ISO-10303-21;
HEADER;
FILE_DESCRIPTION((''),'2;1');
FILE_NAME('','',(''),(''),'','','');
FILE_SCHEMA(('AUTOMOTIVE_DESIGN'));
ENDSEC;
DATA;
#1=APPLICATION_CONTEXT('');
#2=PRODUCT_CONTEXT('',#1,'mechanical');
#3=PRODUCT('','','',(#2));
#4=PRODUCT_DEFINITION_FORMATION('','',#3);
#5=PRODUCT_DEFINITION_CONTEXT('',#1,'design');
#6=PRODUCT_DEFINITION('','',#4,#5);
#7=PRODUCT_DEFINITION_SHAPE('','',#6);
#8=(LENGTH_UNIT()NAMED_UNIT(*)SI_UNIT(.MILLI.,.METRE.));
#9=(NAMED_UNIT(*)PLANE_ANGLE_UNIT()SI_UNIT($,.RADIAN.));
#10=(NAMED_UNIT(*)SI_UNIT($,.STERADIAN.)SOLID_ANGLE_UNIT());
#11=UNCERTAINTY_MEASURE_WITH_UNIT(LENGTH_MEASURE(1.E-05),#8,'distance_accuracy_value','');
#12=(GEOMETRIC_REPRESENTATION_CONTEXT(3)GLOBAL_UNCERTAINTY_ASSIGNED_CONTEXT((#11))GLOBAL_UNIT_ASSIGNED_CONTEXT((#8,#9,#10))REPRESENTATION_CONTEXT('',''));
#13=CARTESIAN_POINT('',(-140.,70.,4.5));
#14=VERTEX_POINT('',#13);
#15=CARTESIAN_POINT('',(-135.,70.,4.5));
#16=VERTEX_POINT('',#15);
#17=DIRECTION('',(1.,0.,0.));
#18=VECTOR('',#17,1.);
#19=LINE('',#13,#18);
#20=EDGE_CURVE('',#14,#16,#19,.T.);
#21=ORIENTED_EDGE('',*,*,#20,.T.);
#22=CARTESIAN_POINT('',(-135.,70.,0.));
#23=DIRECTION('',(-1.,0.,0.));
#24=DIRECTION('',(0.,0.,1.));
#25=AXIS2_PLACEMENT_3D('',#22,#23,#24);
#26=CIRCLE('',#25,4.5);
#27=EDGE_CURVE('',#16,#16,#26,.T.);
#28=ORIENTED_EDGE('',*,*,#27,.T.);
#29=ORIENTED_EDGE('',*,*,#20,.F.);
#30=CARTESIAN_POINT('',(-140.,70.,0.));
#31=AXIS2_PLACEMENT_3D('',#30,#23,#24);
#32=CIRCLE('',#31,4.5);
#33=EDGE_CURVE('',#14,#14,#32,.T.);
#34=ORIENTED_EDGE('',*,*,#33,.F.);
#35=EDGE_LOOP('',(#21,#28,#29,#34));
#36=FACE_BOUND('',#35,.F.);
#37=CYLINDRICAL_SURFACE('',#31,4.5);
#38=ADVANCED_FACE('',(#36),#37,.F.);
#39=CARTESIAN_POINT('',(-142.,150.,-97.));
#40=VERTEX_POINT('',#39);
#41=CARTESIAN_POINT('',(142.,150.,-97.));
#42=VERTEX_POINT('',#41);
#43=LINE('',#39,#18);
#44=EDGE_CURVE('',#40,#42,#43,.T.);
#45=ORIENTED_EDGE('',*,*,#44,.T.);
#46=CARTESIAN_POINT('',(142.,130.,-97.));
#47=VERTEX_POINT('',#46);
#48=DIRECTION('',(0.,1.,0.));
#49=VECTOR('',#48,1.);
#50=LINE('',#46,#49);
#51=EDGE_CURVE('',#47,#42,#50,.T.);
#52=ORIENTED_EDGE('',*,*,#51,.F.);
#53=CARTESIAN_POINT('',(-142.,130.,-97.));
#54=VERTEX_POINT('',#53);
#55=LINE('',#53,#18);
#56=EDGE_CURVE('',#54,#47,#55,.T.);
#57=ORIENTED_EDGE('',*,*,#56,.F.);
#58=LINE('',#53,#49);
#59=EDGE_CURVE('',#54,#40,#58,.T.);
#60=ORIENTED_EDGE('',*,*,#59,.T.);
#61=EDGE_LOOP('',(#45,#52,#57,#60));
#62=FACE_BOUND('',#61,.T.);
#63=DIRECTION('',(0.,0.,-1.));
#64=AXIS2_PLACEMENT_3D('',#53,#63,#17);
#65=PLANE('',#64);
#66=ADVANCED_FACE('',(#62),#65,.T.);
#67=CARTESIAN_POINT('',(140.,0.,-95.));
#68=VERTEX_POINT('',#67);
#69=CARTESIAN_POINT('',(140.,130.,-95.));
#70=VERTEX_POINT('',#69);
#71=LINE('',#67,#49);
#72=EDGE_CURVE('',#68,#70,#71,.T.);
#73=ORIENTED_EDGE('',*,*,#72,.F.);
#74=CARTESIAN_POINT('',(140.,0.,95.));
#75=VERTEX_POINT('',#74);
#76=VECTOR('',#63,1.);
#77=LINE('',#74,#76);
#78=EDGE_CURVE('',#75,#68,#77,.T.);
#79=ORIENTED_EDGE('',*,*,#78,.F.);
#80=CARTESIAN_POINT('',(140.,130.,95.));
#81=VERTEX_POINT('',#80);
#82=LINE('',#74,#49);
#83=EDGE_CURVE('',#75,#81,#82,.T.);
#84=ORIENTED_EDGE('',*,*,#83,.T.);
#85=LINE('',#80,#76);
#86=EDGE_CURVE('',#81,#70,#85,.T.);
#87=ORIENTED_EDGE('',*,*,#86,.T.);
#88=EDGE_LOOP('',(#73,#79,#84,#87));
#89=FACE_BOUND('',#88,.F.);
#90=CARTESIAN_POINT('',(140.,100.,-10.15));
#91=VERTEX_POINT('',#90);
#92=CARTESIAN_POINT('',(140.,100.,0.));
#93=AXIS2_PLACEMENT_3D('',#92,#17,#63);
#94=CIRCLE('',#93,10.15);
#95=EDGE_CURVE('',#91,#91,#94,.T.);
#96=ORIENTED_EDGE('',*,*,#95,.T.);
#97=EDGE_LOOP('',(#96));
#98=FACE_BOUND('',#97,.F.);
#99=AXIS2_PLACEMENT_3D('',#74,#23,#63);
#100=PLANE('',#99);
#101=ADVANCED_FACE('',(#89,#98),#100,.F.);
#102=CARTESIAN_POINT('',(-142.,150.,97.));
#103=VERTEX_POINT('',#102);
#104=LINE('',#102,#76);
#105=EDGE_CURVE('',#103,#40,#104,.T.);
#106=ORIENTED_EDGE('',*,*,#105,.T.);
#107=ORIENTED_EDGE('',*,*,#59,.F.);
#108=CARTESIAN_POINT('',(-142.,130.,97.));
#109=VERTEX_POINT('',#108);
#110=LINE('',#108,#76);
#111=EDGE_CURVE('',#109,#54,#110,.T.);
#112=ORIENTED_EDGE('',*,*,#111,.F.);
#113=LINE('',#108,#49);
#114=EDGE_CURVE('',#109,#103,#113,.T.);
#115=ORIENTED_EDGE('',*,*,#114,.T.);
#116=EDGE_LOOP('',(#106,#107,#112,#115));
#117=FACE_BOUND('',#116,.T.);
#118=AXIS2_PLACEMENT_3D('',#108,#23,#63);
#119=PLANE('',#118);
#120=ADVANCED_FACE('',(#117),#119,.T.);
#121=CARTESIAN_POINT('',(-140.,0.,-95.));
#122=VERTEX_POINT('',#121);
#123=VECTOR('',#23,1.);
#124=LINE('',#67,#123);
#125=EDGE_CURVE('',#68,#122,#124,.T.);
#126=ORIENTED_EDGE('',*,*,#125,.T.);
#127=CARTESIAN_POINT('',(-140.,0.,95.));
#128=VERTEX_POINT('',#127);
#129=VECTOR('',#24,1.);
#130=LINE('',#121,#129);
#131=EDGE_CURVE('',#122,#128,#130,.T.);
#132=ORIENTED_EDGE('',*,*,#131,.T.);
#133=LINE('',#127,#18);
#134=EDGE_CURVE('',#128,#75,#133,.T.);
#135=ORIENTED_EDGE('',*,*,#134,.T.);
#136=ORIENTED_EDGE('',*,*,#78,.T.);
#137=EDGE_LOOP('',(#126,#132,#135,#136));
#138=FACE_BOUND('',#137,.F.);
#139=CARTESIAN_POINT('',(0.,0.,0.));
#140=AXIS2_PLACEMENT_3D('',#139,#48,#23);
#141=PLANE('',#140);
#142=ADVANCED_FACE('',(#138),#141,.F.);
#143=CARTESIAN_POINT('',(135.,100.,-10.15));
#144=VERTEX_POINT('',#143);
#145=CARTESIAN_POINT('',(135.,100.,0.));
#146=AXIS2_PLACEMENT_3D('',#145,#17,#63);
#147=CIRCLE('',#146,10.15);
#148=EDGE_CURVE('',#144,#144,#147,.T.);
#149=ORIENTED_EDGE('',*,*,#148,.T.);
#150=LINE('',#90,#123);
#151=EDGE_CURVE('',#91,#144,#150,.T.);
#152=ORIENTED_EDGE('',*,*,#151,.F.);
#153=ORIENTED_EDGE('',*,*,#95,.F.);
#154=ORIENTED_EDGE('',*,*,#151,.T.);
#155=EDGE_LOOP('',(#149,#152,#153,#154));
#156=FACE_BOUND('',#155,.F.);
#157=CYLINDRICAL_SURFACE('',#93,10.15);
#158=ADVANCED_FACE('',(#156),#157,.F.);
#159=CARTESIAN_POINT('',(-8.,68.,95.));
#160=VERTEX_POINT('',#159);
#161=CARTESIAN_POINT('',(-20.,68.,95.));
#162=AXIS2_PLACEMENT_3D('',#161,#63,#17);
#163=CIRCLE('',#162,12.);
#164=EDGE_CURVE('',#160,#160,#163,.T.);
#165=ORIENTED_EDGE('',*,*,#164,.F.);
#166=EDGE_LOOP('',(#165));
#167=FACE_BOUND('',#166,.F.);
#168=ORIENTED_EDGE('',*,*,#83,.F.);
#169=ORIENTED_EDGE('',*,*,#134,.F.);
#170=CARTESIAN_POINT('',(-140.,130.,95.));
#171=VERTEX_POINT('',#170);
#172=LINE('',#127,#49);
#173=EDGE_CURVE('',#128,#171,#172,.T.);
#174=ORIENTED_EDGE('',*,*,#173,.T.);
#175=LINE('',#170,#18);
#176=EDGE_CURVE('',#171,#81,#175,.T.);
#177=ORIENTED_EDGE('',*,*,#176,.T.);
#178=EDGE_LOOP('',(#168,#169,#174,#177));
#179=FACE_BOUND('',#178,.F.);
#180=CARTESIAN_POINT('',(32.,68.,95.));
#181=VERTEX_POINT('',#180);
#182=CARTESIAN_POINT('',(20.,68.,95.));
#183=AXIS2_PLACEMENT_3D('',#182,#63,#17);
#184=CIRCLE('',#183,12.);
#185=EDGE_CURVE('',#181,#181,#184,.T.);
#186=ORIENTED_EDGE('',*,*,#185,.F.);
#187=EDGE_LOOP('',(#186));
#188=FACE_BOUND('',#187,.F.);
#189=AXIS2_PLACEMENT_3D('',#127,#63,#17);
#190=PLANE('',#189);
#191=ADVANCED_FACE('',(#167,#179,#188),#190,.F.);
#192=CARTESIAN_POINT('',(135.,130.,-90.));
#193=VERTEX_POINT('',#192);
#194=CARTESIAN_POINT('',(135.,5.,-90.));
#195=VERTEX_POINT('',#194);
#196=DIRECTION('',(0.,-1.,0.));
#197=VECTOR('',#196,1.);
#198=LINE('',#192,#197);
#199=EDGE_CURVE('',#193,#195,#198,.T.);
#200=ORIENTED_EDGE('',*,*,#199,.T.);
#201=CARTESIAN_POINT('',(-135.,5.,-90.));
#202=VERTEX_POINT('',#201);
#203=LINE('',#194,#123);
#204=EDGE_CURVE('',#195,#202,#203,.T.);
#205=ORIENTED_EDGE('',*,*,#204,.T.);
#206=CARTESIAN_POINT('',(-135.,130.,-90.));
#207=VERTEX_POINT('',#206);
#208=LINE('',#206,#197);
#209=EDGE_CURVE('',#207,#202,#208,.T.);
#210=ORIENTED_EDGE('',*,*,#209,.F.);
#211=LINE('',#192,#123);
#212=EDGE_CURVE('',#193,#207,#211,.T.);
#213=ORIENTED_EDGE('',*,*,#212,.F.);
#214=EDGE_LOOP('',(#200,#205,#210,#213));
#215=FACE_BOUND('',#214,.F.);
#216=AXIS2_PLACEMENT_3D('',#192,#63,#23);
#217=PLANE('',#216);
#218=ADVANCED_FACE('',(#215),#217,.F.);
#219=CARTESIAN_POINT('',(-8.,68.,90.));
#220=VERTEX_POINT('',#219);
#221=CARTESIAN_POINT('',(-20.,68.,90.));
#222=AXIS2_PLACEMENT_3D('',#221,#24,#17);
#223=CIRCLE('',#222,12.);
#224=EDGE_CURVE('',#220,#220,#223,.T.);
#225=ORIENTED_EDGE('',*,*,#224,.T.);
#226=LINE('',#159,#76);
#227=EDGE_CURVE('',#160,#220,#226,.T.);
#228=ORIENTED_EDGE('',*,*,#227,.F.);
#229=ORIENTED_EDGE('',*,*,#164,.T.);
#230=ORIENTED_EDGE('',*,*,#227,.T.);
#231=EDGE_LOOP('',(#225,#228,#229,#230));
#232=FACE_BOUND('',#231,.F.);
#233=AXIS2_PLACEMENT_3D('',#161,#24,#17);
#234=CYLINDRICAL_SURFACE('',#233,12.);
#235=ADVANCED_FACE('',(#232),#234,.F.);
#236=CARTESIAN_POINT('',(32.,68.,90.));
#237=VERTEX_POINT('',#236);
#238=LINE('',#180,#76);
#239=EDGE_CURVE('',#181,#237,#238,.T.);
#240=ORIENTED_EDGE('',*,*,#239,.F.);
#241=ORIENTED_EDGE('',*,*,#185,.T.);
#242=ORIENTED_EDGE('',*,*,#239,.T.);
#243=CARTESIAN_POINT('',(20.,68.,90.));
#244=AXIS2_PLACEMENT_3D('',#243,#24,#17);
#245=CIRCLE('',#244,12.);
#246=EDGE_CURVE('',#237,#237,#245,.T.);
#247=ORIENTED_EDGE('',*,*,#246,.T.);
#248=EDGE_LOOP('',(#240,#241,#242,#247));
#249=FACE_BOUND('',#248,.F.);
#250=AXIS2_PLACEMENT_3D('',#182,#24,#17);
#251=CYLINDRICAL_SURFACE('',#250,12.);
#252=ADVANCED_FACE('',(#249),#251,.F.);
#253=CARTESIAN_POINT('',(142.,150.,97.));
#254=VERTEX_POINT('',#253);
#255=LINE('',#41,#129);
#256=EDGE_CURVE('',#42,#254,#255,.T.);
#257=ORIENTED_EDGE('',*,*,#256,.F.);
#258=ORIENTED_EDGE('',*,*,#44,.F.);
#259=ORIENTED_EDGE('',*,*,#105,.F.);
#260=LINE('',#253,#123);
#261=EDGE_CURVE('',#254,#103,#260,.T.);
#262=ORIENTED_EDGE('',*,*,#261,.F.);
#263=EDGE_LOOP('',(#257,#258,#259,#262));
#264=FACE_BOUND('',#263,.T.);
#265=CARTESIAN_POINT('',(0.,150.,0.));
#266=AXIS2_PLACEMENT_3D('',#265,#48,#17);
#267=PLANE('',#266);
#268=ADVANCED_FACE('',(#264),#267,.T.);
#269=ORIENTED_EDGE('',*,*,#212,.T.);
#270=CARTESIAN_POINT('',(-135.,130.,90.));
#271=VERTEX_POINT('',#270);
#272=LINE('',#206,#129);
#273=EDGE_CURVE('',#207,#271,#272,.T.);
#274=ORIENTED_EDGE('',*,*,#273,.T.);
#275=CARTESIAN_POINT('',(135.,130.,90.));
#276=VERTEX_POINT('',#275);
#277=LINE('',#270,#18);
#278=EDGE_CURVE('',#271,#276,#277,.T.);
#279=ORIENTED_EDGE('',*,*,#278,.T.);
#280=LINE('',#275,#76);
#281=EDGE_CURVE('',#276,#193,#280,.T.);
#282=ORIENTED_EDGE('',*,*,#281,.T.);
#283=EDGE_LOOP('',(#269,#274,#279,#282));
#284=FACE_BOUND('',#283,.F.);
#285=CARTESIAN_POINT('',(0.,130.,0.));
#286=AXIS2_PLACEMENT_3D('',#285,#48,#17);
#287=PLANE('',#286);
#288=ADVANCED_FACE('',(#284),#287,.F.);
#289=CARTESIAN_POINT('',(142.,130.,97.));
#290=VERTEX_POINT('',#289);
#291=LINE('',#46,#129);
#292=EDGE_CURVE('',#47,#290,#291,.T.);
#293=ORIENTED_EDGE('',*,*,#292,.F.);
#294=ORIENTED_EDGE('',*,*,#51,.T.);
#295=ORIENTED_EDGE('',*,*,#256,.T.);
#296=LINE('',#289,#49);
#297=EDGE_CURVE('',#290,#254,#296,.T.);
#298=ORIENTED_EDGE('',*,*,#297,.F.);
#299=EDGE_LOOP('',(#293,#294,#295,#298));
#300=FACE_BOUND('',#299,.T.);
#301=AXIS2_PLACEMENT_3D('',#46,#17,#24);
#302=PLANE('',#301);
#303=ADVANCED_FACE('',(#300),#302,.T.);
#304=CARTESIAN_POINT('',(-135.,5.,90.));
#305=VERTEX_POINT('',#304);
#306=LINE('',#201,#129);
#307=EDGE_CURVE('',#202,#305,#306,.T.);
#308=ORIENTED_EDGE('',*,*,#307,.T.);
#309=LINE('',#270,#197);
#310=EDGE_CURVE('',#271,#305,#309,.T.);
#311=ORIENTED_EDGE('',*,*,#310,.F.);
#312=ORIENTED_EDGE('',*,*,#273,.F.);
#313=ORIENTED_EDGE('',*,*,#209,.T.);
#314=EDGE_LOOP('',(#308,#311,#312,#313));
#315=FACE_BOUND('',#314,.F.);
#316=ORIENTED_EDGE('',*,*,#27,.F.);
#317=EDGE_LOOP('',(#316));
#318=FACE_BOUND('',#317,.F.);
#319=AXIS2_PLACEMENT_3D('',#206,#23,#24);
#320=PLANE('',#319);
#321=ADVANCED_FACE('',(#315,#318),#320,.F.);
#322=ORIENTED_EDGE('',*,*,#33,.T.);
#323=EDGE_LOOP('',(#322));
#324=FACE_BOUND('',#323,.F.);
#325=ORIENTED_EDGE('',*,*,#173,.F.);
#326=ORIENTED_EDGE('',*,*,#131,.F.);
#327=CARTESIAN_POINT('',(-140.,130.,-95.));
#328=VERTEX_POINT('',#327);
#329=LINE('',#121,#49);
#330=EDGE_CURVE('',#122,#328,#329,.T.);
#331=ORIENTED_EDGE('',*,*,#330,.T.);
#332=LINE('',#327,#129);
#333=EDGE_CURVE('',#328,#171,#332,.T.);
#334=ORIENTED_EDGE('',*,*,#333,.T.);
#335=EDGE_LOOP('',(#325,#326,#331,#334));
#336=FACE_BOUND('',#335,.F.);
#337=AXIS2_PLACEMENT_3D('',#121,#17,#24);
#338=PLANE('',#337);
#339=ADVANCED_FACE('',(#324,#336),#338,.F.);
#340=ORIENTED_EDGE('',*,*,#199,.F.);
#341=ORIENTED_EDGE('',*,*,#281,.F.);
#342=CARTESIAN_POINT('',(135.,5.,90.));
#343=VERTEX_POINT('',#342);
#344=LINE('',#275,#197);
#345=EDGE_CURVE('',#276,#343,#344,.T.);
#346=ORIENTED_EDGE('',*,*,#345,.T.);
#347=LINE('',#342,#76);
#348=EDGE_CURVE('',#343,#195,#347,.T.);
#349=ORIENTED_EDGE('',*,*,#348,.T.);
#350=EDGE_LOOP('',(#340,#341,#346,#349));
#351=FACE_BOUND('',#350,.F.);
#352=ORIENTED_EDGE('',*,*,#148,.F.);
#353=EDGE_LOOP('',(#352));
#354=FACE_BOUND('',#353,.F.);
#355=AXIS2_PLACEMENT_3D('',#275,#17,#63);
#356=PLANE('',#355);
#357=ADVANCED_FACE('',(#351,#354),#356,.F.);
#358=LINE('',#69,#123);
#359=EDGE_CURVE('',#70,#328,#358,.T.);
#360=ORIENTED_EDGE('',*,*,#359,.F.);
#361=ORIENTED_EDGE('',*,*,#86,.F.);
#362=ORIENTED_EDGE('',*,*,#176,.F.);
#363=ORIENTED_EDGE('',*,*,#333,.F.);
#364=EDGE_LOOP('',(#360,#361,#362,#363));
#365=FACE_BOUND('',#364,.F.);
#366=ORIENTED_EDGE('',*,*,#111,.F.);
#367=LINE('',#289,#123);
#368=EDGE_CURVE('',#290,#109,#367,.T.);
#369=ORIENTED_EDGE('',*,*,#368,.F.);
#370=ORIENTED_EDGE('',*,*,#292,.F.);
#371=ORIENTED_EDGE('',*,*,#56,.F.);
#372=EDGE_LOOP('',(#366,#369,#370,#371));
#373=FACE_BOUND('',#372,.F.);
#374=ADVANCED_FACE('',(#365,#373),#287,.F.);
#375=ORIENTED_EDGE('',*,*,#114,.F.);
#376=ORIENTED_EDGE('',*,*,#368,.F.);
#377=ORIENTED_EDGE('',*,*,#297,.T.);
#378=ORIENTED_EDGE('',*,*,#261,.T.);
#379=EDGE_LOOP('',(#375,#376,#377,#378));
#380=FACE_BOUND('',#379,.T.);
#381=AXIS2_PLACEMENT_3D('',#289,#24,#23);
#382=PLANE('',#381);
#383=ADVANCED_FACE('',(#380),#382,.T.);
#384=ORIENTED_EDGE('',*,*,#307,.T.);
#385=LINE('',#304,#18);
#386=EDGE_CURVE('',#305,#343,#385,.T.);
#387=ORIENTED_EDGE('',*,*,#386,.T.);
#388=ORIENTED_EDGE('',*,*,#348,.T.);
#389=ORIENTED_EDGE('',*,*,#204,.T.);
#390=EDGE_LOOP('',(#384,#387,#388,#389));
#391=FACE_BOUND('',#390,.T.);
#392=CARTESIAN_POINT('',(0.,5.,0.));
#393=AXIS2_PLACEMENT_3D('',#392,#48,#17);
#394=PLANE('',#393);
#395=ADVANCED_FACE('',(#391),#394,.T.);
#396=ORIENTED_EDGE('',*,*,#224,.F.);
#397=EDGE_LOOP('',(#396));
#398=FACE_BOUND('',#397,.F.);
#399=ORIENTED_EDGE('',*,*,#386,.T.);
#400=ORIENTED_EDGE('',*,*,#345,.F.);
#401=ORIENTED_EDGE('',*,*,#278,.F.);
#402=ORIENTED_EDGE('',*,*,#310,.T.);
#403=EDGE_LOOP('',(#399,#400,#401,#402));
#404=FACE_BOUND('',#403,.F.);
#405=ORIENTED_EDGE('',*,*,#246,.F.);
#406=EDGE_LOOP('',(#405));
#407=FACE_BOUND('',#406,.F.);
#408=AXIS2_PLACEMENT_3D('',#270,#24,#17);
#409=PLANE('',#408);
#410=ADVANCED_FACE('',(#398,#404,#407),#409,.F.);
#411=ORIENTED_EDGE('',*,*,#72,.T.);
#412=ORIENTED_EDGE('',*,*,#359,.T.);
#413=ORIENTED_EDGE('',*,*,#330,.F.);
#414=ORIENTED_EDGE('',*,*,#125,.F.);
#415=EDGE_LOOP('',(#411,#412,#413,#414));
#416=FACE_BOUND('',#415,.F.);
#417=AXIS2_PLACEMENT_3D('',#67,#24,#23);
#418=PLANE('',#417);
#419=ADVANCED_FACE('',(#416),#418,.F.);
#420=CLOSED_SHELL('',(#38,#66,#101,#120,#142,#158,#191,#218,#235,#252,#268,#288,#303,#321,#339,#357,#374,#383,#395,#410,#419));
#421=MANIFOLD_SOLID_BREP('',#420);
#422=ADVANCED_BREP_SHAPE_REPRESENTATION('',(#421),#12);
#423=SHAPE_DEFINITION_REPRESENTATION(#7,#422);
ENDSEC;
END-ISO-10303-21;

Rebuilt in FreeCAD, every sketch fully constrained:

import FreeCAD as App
import Part
import Sketcher
Q = App.Units.Quantity


def add_polygon(sketch, points):
    """Adds a closed chain of lines whose ends are joined by coincident constraints."""
    first, n = sketch.GeometryCount, len(points)
    for a, b in zip(points, points[1:] + points[:1]):
        sketch.addGeometry(Part.LineSegment(App.Vector(*a, 0), App.Vector(*b, 0)), False)
    for i in range(n):
        sketch.addConstraint(Sketcher.Constraint("Coincident", first + i, 2, first + (i + 1) % n, 1))

doc = App.newDocument("Part")
body = doc.addObject("PartDesign::Body", "Body")

sketch1 = body.newObject("Sketcher::SketchObject", "Sketch")
sketch1.AttachmentSupport = (doc.getObject("XZ_Plane"), [""])
sketch1.MapMode = "FlatFace"
add_polygon(sketch1, [(-140, -95), (-140, 95), (140, 95), (140, -95)])
sketch1.addConstraint([
    Sketcher.Constraint("Vertical", 0),
    Sketcher.Constraint("Horizontal", 1),
    Sketcher.Constraint("Vertical", 2),
    Sketcher.Constraint("Horizontal", 3),
    Sketcher.Constraint("Symmetric", 0, 2, 2, 2, -1, 1),
    Sketcher.Constraint("DistanceX", 1, 1, 1, 2, Q("280 mm")),
    Sketcher.Constraint("DistanceY", 0, 1, 0, 2, Q("190 mm")),
])
pad1 = body.newObject("PartDesign::Pad", "Pad")
pad1.Profile = sketch1
pad1.Length = 130
pad1.Reversed = True

sketch2 = body.newObject("Sketcher::SketchObject", "Sketch001")
sketch2.AttachmentSupport = (doc.getObject("XZ_Plane"), [""])
sketch2.MapMode = "FlatFace"
sketch2.AttachmentOffset = App.Placement(App.Vector(0, 0, -130), App.Rotation())
add_polygon(sketch2, [(-135, -90), (-135, 90), (135, 90), (135, -90)])
sketch2.addConstraint([
    Sketcher.Constraint("Vertical", 0),
    Sketcher.Constraint("Horizontal", 1),
    Sketcher.Constraint("Vertical", 2),
    Sketcher.Constraint("Horizontal", 3),
    Sketcher.Constraint("Symmetric", 0, 2, 2, 2, -1, 1),
    Sketcher.Constraint("DistanceX", 1, 1, 1, 2, Q("270 mm")),
    Sketcher.Constraint("DistanceY", 0, 1, 0, 2, Q("180 mm")),
])
pocket1 = body.newObject("PartDesign::Pocket", "Pocket")
pocket1.Profile = sketch2
pocket1.Length = 125
pocket1.Reversed = True

sketch3 = body.newObject("Sketcher::SketchObject", "Sketch002")
sketch3.AttachmentSupport = (doc.getObject("XZ_Plane"), [""])
sketch3.MapMode = "FlatFace"
sketch3.AttachmentOffset = App.Placement(App.Vector(0, 0, -130), App.Rotation())
add_polygon(sketch3, [(142, -97), (-142, -97), (-142, 97), (142, 97)])
sketch3.addConstraint([
    Sketcher.Constraint("Horizontal", 0),
    Sketcher.Constraint("Vertical", 1),
    Sketcher.Constraint("Horizontal", 2),
    Sketcher.Constraint("Vertical", 3),
    Sketcher.Constraint("Symmetric", 0, 2, 2, 2, -1, 1),
    Sketcher.Constraint("DistanceX", 0, 2, 0, 1, Q("284 mm")),
    Sketcher.Constraint("DistanceY", 1, 1, 1, 2, Q("194 mm")),
])
pad2 = body.newObject("PartDesign::Pad", "Pad001")
pad2.Profile = sketch3
pad2.Length = 20
pad2.Reversed = True

sketch4 = body.newObject("Sketcher::SketchObject", "Sketch003")
sketch4.AttachmentSupport = (doc.getObject("XY_Plane"), [""])
sketch4.MapMode = "FlatFace"
sketch4.AttachmentOffset = App.Placement(App.Vector(0, 0, 95), App.Rotation())
sketch4.addGeometry([
    Part.Circle(App.Vector(-20, 68, 0), App.Vector(0, 0, 1), 12),
    Part.Circle(App.Vector(20, 68, 0), App.Vector(0, 0, 1), 12),
], False)
sketch4.addConstraint([
    Sketcher.Constraint("Equal", 0, 1),
    Sketcher.Constraint("Symmetric", 0, 3, 1, 3, -2),
    Sketcher.Constraint("Diameter", 0, Q("24 mm")),
    Sketcher.Constraint("DistanceY", -1, 1, 0, 3, Q("68 mm")),
    Sketcher.Constraint("DistanceX", 0, 3, 1, 3, Q("40 mm")),
])
pocket2 = body.newObject("PartDesign::Pocket", "Pocket001")
pocket2.Profile = sketch4
pocket2.Length = 10

sketch5 = body.newObject("Sketcher::SketchObject", "Sketch004")
sketch5.AttachmentSupport = (doc.getObject("YZ_Plane"), [""])
sketch5.MapMode = "FlatFace"
sketch5.AttachmentOffset = App.Placement(App.Vector(0, 0, 140), App.Rotation())
sketch5.addGeometry(Part.Circle(App.Vector(100, 0, 0), App.Vector(0, 0, 1), 10), False)
sketch5.addConstraint([
    Sketcher.Constraint("PointOnObject", 0, 3, -1),
    Sketcher.Constraint("Diameter", 0, Q("20.3 mm")),
    Sketcher.Constraint("DistanceX", -1, 1, 0, 3, Q("100 mm")),
])
pocket3 = body.newObject("PartDesign::Pocket", "Pocket002")
pocket3.Profile = sketch5
pocket3.Length = 10

sketch6 = body.newObject("Sketcher::SketchObject", "Sketch005")
sketch6.AttachmentSupport = (doc.getObject("YZ_Plane"), [""])
sketch6.MapMode = "FlatFace"
sketch6.AttachmentOffset = App.Placement(App.Vector(0, 0, -140), App.Rotation())
sketch6.addGeometry(Part.Circle(App.Vector(70, 0, 0), App.Vector(0, 0, 1), 4.5), False)
sketch6.addConstraint([
    Sketcher.Constraint("PointOnObject", 0, 3, -1),
    Sketcher.Constraint("Diameter", 0, Q("9 mm")),
    Sketcher.Constraint("DistanceX", -1, 1, 0, 3, Q("70 mm")),
])
pocket4 = body.newObject("PartDesign::Pocket", "Pocket003")
pocket4.Profile = sketch6
pocket4.Length = 10
pocket4.Reversed = True

doc.recompute()
